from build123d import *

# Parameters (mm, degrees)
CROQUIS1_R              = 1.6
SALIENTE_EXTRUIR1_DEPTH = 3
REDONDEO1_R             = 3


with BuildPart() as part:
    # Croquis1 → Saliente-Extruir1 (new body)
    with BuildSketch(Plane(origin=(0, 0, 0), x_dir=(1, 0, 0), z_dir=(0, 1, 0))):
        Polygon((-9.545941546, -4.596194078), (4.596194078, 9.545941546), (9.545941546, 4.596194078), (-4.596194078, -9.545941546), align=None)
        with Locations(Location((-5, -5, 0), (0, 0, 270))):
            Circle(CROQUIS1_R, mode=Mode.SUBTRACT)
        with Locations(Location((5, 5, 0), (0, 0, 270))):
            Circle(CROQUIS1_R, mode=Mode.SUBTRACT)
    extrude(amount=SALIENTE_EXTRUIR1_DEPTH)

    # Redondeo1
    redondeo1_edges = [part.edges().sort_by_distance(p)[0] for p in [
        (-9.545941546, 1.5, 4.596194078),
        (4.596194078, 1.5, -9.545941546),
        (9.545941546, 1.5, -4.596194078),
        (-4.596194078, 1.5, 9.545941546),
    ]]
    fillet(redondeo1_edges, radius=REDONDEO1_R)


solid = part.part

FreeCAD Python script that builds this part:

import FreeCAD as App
import Part
import Sketcher
from FreeCAD import Vector
Q = App.Units.Quantity


def edges_at(feature, points):
    """Names of the edges that pass closest to the given points."""
    edges = feature.Shape.Edges
    near = lambda p: min(range(len(edges)), key=lambda i: edges[i].distToShape(Part.Vertex(*p))[0])
    return sorted({f"Edge{near(p) + 1}" for p in points})


def add_polygon(sketch, points):
    """Adds a closed chain of lines whose ends are joined by coincident constraints."""
    first, n = sketch.GeometryCount, len(points)
    for a, b in zip(points, points[1:] + points[:1]):
        sketch.addGeometry(Part.LineSegment(App.Vector(*a, 0), App.Vector(*b, 0)), False)
    for i in range(n):
        sketch.addConstraint(Sketcher.Constraint("Coincident", first + i, 2, first + (i + 1) % n, 1))

doc = App.newDocument("Part")
body = doc.addObject("PartDesign::Body", "Body")

# Sketch on XZ plane
sketch1 = body.newObject("Sketcher::SketchObject", "Sketch")
sketch1.AttachmentSupport = (doc.getObject("XZ_Plane"), [""])
sketch1.MapMode = "FlatFace"
add_polygon(sketch1, [(4.596194, -9.545942), (-9.545942, 4.596194), (-4.596194, 9.545942), (9.545942, -4.596194)])  # lines 0-3
sketch1.addGeometry(Part.Circle(Vector(-5, 5, 0), Vector(0, 0, 1), 1.6), False)  # 4
sketch1.addGeometry(Part.Circle(Vector(5, -5, 0), Vector(0, 0, 1), 1.6), False)  # 5
sketch1.addConstraint(Sketcher.Constraint("Equal", 4, 5))
sketch1.addConstraint(Sketcher.Constraint("Symmetric", 4, 3, 5, 3, -1, 1))
sketch1.addConstraint(Sketcher.Constraint("Symmetric", 0, 2, 2, 2, -1, 1))
sketch1.addConstraint(Sketcher.Constraint("Symmetric", 1, 2, 3, 2, -1, 1))
sketch1.addConstraint(Sketcher.Constraint("Perpendicular", 0, 1))
sketch1.addConstraint(Sketcher.Constraint("Diameter", 4, Q("3.2 mm")))
sketch1.addConstraint(Sketcher.Constraint("Angle", 0, Q("135 deg")))
sketch1.addConstraint(Sketcher.Constraint("Distance", 0, Q("20 mm")))
sketch1.addConstraint(Sketcher.Constraint("Distance", 1, Q("7 mm")))
sketch1.addConstraint(Sketcher.Constraint("DistanceX", 4, 3, -1, 1, Q("5 mm")))
sketch1.addConstraint(Sketcher.Constraint("DistanceY", -1, 1, 4, 3, Q("5 mm")))
pad1 = body.newObject("PartDesign::Pad", "Pad")
pad1.Profile = sketch1
pad1.Length = 3
pad1.Reversed = True
doc.recompute()

fillet = body.newObject("PartDesign::Fillet", "Fillet")
fillet.Base = (pad1, edges_at(pad1, [
    (-9.546, 1.5, 4.596),
    (4.596, 1.5, -9.546),
    (9.546, 1.5, -4.596),
    (-4.596, 1.5, 9.546),
]))
fillet.Radius = 3

doc.recompute()
